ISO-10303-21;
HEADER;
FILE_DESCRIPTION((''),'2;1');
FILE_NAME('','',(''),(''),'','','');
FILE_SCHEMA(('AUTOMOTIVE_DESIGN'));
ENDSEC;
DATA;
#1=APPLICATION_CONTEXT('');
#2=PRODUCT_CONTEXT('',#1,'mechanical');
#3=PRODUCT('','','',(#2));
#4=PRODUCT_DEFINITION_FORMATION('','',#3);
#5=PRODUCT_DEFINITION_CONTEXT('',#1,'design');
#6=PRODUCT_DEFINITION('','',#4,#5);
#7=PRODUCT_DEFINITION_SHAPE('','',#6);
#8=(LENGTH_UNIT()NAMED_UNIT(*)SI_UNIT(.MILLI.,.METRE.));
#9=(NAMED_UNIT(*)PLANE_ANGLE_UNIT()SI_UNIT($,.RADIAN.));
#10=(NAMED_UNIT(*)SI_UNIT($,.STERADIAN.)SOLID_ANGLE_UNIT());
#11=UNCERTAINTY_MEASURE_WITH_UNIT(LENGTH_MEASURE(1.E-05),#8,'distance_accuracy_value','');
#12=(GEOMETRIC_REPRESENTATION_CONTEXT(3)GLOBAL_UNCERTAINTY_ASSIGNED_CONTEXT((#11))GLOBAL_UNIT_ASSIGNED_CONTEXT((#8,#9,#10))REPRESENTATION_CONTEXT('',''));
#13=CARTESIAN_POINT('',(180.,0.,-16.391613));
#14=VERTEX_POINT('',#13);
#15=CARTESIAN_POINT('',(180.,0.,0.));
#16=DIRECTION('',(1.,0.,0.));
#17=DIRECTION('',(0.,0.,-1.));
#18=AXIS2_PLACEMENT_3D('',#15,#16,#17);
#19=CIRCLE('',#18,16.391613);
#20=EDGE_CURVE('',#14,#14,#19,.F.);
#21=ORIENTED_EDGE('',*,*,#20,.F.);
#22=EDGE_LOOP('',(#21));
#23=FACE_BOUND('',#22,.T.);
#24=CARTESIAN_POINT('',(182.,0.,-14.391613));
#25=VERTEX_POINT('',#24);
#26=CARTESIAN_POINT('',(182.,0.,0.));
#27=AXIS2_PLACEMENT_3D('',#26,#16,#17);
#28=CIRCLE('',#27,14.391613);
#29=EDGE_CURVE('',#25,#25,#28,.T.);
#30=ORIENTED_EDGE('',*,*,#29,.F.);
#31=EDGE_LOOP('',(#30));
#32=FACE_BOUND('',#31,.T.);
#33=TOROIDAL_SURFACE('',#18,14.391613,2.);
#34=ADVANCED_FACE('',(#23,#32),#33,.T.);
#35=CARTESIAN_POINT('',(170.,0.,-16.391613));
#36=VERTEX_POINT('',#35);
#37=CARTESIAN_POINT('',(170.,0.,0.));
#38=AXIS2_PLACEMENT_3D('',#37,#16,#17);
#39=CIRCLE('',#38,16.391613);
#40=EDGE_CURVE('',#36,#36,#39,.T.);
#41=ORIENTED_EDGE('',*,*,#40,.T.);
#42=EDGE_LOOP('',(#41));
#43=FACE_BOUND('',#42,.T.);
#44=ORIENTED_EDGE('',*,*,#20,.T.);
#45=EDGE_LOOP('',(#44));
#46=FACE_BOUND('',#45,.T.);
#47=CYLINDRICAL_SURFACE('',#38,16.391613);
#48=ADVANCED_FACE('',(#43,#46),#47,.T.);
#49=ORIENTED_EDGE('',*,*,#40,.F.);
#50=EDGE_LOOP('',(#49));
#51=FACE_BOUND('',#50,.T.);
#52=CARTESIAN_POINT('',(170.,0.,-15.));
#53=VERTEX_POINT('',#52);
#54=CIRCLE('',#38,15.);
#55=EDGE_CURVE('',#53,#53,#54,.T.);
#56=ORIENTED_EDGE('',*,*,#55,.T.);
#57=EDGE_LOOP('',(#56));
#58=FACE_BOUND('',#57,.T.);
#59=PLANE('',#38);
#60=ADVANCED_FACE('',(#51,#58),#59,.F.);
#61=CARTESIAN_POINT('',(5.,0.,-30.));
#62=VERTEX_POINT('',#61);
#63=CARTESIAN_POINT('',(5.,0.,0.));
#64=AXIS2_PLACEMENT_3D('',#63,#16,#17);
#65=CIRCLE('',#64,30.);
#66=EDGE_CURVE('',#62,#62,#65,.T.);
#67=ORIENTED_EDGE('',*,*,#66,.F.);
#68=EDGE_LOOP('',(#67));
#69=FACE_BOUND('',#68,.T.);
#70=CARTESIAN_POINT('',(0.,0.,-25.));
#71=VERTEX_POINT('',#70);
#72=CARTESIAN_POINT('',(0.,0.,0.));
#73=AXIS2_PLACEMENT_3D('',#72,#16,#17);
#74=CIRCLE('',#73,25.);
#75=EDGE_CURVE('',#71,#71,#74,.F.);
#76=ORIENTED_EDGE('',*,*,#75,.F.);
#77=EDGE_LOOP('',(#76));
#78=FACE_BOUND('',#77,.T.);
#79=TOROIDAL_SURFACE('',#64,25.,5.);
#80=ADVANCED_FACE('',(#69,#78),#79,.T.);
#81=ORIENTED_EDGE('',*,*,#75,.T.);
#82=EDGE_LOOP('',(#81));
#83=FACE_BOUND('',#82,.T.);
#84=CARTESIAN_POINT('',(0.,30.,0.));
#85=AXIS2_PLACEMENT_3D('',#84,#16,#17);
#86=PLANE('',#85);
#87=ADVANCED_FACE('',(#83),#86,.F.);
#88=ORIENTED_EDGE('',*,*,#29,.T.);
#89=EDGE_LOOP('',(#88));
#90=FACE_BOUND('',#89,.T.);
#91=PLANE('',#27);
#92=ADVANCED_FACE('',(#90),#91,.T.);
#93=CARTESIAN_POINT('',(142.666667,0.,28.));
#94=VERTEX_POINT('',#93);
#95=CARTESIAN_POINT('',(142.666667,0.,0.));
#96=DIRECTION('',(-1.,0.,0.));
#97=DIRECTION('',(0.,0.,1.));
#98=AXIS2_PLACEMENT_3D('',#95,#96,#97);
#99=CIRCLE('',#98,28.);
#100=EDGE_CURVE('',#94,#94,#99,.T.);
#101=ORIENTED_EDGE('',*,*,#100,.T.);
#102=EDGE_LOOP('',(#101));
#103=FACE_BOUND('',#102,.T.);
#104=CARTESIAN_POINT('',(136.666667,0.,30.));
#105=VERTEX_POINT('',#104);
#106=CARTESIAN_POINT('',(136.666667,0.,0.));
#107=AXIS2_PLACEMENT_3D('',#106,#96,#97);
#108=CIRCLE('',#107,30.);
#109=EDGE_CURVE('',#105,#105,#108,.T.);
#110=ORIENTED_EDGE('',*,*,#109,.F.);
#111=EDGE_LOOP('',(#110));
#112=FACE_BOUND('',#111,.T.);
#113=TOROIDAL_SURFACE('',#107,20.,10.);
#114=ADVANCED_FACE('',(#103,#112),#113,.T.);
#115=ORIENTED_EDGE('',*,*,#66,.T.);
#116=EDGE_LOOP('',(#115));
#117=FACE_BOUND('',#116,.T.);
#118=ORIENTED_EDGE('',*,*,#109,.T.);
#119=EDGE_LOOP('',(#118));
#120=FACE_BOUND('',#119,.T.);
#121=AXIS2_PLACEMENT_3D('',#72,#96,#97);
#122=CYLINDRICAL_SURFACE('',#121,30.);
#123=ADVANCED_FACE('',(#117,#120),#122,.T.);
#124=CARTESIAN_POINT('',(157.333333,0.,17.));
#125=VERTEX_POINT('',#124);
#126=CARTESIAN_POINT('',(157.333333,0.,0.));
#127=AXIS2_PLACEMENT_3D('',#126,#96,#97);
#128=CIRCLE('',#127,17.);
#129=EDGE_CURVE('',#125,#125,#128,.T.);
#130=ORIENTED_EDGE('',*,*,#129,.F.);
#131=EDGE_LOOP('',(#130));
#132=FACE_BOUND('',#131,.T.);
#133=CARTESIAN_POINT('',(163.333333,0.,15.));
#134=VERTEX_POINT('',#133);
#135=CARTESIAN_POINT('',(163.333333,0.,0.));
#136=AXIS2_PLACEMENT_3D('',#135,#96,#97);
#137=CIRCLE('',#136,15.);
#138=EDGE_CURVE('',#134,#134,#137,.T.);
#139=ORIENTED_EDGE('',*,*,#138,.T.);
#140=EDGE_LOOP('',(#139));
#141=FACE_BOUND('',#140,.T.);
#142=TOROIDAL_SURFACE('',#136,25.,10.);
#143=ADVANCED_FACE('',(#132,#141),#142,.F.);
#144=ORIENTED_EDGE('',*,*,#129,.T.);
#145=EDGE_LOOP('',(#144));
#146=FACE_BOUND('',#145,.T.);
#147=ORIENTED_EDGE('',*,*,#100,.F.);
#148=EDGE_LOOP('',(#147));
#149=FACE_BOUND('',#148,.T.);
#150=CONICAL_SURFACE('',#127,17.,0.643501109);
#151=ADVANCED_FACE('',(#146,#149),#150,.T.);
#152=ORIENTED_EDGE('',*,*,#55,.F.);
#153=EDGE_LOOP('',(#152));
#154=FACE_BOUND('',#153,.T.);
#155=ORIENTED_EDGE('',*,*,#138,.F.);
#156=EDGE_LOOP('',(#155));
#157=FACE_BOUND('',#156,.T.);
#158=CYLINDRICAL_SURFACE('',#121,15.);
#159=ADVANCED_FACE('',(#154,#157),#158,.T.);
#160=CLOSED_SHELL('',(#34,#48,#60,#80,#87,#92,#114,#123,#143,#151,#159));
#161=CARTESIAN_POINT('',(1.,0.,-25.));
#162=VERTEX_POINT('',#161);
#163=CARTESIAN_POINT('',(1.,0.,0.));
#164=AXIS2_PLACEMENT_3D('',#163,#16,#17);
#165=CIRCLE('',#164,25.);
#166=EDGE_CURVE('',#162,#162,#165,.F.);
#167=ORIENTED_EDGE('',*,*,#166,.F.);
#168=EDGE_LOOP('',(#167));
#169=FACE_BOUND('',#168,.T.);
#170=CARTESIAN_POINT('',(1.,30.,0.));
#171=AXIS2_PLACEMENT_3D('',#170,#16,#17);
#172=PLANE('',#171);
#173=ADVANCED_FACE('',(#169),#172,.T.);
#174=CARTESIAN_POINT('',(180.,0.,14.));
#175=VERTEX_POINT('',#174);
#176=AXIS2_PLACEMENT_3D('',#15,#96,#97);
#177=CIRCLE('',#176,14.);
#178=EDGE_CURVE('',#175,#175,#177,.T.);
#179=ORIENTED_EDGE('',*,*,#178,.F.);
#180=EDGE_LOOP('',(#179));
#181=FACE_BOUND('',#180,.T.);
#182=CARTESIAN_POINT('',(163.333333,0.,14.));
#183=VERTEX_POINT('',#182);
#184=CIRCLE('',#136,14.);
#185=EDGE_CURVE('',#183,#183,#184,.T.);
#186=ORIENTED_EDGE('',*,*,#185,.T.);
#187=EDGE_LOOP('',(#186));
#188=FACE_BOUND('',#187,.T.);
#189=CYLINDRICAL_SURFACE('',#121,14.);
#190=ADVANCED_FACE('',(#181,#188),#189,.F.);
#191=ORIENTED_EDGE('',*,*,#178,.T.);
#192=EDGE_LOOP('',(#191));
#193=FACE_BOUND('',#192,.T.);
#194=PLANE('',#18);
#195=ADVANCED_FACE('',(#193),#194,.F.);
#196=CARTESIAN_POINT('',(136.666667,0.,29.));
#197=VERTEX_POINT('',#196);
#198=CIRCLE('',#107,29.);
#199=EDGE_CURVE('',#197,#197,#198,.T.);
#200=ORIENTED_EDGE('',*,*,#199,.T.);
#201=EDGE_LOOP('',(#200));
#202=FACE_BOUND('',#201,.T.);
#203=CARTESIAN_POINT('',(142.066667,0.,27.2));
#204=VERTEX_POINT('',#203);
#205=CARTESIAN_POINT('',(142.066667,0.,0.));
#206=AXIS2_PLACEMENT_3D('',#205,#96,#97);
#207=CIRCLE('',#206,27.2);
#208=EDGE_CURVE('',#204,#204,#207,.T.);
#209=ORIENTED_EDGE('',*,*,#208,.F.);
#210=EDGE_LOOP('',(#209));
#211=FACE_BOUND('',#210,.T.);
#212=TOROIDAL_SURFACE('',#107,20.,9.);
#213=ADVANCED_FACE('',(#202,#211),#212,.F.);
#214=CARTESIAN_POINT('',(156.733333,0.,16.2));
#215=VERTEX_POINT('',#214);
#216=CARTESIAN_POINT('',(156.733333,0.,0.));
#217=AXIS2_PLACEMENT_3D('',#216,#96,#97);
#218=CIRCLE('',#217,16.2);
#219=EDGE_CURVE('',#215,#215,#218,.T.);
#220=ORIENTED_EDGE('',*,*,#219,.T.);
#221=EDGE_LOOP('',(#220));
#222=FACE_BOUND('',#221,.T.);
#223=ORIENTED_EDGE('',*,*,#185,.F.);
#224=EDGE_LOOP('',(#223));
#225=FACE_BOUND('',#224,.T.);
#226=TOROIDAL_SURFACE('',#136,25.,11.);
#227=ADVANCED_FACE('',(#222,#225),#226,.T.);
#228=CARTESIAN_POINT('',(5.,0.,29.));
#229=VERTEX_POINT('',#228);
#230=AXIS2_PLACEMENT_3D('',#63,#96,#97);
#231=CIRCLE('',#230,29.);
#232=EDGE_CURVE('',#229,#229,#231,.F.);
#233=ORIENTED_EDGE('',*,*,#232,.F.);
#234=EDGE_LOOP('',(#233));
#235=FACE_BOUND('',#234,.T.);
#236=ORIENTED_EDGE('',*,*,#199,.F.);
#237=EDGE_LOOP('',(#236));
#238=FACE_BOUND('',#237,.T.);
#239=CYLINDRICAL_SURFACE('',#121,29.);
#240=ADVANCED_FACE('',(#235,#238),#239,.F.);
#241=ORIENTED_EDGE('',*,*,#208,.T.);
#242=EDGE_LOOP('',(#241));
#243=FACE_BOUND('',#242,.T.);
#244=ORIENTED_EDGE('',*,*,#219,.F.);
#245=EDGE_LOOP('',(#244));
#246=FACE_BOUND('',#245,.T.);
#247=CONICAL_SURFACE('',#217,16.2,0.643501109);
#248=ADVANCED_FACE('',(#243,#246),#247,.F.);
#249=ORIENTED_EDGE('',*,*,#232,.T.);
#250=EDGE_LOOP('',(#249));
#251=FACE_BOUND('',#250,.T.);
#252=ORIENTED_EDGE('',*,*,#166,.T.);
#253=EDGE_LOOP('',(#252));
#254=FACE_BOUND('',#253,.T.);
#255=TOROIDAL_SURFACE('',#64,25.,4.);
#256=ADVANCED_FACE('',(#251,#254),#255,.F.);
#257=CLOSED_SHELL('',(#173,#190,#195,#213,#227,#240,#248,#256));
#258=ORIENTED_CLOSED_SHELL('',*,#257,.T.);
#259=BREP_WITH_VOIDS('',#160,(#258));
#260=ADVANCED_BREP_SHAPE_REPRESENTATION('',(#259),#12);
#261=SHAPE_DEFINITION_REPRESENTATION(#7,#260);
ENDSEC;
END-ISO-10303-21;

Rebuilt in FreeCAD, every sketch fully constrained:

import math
import FreeCAD as App
import Part
import Sketcher

V = App.Vector
Q = App.Units.Quantity


def edges_at(feature, points):
    """Names of the edges that pass closest to the given points."""
    edges = feature.Shape.Edges
    near = lambda p: min(range(len(edges)), key=lambda i: edges[i].distToShape(Part.Vertex(*p))[0])
    return sorted({f"Edge{near(p) + 1}" for p in points})


def faces_at(feature, points):
    """Names of the faces that lie closest to the given points."""
    faces = feature.Shape.Faces
    near = lambda p: min(range(len(faces)), key=lambda i: faces[i].distToShape(Part.Vertex(*p))[0])
    return sorted({f"Face{near(p) + 1}" for p in points})

doc = App.newDocument("Part")
body = doc.addObject("PartDesign::Body", "Body")

# Sketch on XY plane
sketch1 = body.newObject("Sketcher::SketchObject", "Sketch")
sketch1.AttachmentSupport = (doc.getObject("XY_Plane"), [""])
sketch1.MapMode = "FlatFace"
sketch1.addGeometry([
    Part.LineSegment(V(180, 15, 0), V(163, 15, 0)),  # 0
    Part.ArcOfCircle(Part.Circle(V(163, 25, 0), V(0, 0, 1), 10), math.radians(-127), math.radians(-90)),  # 1
    Part.LineSegment(V(157, 17, 0), V(143, 28, 0)),  # 2
    Part.ArcOfCircle(Part.Circle(V(137, 20, 0), V(0, 0, 1), 10), math.radians(53), math.radians(90)),  # 3
    Part.LineSegment(V(137, 30, 0), V(0, 30, 0)),  # 4
    Part.LineSegment(V(0, 30, 0), V(0, 0, 0)),  # 5
    Part.LineSegment(V(0, 0, 0), V(180, 0, 0)),  # 6
    Part.LineSegment(V(180, 0, 0), V(180, 15, 0)),  # 7
], False)
sketch1.addConstraint([
    Sketcher.Constraint("Tangent", 0, 2, 1, 2),
    Sketcher.Constraint("Tangent", 1, 1, 2, 1),
    Sketcher.Constraint("Tangent", 2, 2, 3, 1),
    Sketcher.Constraint("Tangent", 3, 2, 4, 1),
    Sketcher.Constraint("Coincident", 4, 2, 5, 1),
    Sketcher.Constraint("Coincident", 5, 2, 6, 1),
    Sketcher.Constraint("Coincident", 6, 2, 7, 1),
    Sketcher.Constraint("Coincident", 7, 2, 0, 1),
    Sketcher.Constraint("Horizontal", 0),
    Sketcher.Constraint("Horizontal", 4),
    Sketcher.Constraint("Vertical", 5),
    Sketcher.Constraint("Horizontal", 6),
    Sketcher.Constraint("Vertical", 7),
    Sketcher.Constraint("Coincident", 5, 2, -1, 1),
    Sketcher.Constraint("Equal", 1, 3),
    Sketcher.Constraint("Radius", 1, Q("10 mm")),
    Sketcher.Constraint("DistanceX", 6, 1, 6, 2, Q("180 mm")),
    Sketcher.Constraint("DistanceY", 5, 2, 5, 1, Q("30 mm")),
    Sketcher.Constraint("DistanceY", 7, 1, 7, 2, Q("15 mm")),
    Sketcher.Constraint("DistanceY", -1, 1, 1, 1, Q("17 mm")),
    Sketcher.Constraint("DistanceX", 0, 2, 0, 1, Q("16.666667 mm")),
])
revolution = body.newObject("PartDesign::Revolution", "Revolution")
revolution.Profile = sketch1
revolution.ReferenceAxis = (sketch1, ["H_Axis"])
revolution.Angle = 360
doc.recompute()

fillet = body.newObject("PartDesign::Fillet", "Fillet")
fillet.Base = (revolution, edges_at(revolution, [(0, 0, -30)]))
fillet.Radius = 5
doc.recompute()

thickness = body.newObject("PartDesign::Thickness", "Thickness")
thickness.Base = (fillet, faces_at(fillet, [(180, 0, 0)]))
thickness.Value = 1
thickness.Reversed = True
thickness.Join = "Intersection"

# Sketch on YZ plane
sketch2 = body.newObject("Sketcher::SketchObject", "Sketch001")
sketch2.AttachmentSupport = (doc.getObject("YZ_Plane"), [""])
sketch2.MapMode = "FlatFace"
sketch2.AttachmentOffset = App.Placement(V(0, 0, 170), App.Rotation())
sketch2.addGeometry([
    Part.Circle(V(0, 0, 0), V(0, 0, 1), 16),
    Part.Circle(V(0, 0, 0), V(0, 0, 1), 15),
], False)
sketch2.addConstraint([
    Sketcher.Constraint("Coincident", 0, 3, -1, 1),
    Sketcher.Constraint("Coincident", 1, 3, -1, 1),
    Sketcher.Constraint("Diameter", 1, Q("30 mm")),
    Sketcher.Constraint("Diameter", 0, Q("32.783227 mm")),
])
pad1 = body.newObject("PartDesign::Pad", "Pad")
pad1.Profile = sketch2
pad1.Length = 10

# Sketch on YZ plane
sketch3 = body.newObject("Sketcher::SketchObject", "Sketch002")
sketch3.AttachmentSupport = (doc.getObject("YZ_Plane"), [""])
sketch3.MapMode = "FlatFace"
sketch3.AttachmentOffset = App.Placement(V(0, 0, 180), App.Rotation())
sketch3.addGeometry(Part.Circle(V(0, 0, 0), V(0, 0, 1), 16), False)
sketch3.addConstraint([
    Sketcher.Constraint("Coincident", 0, 3, -1, 1),
    Sketcher.Constraint("Diameter", 0, Q("32.783227 mm")),
])
pad2 = body.newObject("PartDesign::Pad", "Pad001")
pad2.Profile = sketch3
pad2.Length = 2
doc.recompute()

fillet2 = body.newObject("PartDesign::Fillet", "Fillet001")
fillet2.Base = (pad2, edges_at(pad2, [(182, 0, 16.392)]))
fillet2.Radius = 2

doc.recompute()
